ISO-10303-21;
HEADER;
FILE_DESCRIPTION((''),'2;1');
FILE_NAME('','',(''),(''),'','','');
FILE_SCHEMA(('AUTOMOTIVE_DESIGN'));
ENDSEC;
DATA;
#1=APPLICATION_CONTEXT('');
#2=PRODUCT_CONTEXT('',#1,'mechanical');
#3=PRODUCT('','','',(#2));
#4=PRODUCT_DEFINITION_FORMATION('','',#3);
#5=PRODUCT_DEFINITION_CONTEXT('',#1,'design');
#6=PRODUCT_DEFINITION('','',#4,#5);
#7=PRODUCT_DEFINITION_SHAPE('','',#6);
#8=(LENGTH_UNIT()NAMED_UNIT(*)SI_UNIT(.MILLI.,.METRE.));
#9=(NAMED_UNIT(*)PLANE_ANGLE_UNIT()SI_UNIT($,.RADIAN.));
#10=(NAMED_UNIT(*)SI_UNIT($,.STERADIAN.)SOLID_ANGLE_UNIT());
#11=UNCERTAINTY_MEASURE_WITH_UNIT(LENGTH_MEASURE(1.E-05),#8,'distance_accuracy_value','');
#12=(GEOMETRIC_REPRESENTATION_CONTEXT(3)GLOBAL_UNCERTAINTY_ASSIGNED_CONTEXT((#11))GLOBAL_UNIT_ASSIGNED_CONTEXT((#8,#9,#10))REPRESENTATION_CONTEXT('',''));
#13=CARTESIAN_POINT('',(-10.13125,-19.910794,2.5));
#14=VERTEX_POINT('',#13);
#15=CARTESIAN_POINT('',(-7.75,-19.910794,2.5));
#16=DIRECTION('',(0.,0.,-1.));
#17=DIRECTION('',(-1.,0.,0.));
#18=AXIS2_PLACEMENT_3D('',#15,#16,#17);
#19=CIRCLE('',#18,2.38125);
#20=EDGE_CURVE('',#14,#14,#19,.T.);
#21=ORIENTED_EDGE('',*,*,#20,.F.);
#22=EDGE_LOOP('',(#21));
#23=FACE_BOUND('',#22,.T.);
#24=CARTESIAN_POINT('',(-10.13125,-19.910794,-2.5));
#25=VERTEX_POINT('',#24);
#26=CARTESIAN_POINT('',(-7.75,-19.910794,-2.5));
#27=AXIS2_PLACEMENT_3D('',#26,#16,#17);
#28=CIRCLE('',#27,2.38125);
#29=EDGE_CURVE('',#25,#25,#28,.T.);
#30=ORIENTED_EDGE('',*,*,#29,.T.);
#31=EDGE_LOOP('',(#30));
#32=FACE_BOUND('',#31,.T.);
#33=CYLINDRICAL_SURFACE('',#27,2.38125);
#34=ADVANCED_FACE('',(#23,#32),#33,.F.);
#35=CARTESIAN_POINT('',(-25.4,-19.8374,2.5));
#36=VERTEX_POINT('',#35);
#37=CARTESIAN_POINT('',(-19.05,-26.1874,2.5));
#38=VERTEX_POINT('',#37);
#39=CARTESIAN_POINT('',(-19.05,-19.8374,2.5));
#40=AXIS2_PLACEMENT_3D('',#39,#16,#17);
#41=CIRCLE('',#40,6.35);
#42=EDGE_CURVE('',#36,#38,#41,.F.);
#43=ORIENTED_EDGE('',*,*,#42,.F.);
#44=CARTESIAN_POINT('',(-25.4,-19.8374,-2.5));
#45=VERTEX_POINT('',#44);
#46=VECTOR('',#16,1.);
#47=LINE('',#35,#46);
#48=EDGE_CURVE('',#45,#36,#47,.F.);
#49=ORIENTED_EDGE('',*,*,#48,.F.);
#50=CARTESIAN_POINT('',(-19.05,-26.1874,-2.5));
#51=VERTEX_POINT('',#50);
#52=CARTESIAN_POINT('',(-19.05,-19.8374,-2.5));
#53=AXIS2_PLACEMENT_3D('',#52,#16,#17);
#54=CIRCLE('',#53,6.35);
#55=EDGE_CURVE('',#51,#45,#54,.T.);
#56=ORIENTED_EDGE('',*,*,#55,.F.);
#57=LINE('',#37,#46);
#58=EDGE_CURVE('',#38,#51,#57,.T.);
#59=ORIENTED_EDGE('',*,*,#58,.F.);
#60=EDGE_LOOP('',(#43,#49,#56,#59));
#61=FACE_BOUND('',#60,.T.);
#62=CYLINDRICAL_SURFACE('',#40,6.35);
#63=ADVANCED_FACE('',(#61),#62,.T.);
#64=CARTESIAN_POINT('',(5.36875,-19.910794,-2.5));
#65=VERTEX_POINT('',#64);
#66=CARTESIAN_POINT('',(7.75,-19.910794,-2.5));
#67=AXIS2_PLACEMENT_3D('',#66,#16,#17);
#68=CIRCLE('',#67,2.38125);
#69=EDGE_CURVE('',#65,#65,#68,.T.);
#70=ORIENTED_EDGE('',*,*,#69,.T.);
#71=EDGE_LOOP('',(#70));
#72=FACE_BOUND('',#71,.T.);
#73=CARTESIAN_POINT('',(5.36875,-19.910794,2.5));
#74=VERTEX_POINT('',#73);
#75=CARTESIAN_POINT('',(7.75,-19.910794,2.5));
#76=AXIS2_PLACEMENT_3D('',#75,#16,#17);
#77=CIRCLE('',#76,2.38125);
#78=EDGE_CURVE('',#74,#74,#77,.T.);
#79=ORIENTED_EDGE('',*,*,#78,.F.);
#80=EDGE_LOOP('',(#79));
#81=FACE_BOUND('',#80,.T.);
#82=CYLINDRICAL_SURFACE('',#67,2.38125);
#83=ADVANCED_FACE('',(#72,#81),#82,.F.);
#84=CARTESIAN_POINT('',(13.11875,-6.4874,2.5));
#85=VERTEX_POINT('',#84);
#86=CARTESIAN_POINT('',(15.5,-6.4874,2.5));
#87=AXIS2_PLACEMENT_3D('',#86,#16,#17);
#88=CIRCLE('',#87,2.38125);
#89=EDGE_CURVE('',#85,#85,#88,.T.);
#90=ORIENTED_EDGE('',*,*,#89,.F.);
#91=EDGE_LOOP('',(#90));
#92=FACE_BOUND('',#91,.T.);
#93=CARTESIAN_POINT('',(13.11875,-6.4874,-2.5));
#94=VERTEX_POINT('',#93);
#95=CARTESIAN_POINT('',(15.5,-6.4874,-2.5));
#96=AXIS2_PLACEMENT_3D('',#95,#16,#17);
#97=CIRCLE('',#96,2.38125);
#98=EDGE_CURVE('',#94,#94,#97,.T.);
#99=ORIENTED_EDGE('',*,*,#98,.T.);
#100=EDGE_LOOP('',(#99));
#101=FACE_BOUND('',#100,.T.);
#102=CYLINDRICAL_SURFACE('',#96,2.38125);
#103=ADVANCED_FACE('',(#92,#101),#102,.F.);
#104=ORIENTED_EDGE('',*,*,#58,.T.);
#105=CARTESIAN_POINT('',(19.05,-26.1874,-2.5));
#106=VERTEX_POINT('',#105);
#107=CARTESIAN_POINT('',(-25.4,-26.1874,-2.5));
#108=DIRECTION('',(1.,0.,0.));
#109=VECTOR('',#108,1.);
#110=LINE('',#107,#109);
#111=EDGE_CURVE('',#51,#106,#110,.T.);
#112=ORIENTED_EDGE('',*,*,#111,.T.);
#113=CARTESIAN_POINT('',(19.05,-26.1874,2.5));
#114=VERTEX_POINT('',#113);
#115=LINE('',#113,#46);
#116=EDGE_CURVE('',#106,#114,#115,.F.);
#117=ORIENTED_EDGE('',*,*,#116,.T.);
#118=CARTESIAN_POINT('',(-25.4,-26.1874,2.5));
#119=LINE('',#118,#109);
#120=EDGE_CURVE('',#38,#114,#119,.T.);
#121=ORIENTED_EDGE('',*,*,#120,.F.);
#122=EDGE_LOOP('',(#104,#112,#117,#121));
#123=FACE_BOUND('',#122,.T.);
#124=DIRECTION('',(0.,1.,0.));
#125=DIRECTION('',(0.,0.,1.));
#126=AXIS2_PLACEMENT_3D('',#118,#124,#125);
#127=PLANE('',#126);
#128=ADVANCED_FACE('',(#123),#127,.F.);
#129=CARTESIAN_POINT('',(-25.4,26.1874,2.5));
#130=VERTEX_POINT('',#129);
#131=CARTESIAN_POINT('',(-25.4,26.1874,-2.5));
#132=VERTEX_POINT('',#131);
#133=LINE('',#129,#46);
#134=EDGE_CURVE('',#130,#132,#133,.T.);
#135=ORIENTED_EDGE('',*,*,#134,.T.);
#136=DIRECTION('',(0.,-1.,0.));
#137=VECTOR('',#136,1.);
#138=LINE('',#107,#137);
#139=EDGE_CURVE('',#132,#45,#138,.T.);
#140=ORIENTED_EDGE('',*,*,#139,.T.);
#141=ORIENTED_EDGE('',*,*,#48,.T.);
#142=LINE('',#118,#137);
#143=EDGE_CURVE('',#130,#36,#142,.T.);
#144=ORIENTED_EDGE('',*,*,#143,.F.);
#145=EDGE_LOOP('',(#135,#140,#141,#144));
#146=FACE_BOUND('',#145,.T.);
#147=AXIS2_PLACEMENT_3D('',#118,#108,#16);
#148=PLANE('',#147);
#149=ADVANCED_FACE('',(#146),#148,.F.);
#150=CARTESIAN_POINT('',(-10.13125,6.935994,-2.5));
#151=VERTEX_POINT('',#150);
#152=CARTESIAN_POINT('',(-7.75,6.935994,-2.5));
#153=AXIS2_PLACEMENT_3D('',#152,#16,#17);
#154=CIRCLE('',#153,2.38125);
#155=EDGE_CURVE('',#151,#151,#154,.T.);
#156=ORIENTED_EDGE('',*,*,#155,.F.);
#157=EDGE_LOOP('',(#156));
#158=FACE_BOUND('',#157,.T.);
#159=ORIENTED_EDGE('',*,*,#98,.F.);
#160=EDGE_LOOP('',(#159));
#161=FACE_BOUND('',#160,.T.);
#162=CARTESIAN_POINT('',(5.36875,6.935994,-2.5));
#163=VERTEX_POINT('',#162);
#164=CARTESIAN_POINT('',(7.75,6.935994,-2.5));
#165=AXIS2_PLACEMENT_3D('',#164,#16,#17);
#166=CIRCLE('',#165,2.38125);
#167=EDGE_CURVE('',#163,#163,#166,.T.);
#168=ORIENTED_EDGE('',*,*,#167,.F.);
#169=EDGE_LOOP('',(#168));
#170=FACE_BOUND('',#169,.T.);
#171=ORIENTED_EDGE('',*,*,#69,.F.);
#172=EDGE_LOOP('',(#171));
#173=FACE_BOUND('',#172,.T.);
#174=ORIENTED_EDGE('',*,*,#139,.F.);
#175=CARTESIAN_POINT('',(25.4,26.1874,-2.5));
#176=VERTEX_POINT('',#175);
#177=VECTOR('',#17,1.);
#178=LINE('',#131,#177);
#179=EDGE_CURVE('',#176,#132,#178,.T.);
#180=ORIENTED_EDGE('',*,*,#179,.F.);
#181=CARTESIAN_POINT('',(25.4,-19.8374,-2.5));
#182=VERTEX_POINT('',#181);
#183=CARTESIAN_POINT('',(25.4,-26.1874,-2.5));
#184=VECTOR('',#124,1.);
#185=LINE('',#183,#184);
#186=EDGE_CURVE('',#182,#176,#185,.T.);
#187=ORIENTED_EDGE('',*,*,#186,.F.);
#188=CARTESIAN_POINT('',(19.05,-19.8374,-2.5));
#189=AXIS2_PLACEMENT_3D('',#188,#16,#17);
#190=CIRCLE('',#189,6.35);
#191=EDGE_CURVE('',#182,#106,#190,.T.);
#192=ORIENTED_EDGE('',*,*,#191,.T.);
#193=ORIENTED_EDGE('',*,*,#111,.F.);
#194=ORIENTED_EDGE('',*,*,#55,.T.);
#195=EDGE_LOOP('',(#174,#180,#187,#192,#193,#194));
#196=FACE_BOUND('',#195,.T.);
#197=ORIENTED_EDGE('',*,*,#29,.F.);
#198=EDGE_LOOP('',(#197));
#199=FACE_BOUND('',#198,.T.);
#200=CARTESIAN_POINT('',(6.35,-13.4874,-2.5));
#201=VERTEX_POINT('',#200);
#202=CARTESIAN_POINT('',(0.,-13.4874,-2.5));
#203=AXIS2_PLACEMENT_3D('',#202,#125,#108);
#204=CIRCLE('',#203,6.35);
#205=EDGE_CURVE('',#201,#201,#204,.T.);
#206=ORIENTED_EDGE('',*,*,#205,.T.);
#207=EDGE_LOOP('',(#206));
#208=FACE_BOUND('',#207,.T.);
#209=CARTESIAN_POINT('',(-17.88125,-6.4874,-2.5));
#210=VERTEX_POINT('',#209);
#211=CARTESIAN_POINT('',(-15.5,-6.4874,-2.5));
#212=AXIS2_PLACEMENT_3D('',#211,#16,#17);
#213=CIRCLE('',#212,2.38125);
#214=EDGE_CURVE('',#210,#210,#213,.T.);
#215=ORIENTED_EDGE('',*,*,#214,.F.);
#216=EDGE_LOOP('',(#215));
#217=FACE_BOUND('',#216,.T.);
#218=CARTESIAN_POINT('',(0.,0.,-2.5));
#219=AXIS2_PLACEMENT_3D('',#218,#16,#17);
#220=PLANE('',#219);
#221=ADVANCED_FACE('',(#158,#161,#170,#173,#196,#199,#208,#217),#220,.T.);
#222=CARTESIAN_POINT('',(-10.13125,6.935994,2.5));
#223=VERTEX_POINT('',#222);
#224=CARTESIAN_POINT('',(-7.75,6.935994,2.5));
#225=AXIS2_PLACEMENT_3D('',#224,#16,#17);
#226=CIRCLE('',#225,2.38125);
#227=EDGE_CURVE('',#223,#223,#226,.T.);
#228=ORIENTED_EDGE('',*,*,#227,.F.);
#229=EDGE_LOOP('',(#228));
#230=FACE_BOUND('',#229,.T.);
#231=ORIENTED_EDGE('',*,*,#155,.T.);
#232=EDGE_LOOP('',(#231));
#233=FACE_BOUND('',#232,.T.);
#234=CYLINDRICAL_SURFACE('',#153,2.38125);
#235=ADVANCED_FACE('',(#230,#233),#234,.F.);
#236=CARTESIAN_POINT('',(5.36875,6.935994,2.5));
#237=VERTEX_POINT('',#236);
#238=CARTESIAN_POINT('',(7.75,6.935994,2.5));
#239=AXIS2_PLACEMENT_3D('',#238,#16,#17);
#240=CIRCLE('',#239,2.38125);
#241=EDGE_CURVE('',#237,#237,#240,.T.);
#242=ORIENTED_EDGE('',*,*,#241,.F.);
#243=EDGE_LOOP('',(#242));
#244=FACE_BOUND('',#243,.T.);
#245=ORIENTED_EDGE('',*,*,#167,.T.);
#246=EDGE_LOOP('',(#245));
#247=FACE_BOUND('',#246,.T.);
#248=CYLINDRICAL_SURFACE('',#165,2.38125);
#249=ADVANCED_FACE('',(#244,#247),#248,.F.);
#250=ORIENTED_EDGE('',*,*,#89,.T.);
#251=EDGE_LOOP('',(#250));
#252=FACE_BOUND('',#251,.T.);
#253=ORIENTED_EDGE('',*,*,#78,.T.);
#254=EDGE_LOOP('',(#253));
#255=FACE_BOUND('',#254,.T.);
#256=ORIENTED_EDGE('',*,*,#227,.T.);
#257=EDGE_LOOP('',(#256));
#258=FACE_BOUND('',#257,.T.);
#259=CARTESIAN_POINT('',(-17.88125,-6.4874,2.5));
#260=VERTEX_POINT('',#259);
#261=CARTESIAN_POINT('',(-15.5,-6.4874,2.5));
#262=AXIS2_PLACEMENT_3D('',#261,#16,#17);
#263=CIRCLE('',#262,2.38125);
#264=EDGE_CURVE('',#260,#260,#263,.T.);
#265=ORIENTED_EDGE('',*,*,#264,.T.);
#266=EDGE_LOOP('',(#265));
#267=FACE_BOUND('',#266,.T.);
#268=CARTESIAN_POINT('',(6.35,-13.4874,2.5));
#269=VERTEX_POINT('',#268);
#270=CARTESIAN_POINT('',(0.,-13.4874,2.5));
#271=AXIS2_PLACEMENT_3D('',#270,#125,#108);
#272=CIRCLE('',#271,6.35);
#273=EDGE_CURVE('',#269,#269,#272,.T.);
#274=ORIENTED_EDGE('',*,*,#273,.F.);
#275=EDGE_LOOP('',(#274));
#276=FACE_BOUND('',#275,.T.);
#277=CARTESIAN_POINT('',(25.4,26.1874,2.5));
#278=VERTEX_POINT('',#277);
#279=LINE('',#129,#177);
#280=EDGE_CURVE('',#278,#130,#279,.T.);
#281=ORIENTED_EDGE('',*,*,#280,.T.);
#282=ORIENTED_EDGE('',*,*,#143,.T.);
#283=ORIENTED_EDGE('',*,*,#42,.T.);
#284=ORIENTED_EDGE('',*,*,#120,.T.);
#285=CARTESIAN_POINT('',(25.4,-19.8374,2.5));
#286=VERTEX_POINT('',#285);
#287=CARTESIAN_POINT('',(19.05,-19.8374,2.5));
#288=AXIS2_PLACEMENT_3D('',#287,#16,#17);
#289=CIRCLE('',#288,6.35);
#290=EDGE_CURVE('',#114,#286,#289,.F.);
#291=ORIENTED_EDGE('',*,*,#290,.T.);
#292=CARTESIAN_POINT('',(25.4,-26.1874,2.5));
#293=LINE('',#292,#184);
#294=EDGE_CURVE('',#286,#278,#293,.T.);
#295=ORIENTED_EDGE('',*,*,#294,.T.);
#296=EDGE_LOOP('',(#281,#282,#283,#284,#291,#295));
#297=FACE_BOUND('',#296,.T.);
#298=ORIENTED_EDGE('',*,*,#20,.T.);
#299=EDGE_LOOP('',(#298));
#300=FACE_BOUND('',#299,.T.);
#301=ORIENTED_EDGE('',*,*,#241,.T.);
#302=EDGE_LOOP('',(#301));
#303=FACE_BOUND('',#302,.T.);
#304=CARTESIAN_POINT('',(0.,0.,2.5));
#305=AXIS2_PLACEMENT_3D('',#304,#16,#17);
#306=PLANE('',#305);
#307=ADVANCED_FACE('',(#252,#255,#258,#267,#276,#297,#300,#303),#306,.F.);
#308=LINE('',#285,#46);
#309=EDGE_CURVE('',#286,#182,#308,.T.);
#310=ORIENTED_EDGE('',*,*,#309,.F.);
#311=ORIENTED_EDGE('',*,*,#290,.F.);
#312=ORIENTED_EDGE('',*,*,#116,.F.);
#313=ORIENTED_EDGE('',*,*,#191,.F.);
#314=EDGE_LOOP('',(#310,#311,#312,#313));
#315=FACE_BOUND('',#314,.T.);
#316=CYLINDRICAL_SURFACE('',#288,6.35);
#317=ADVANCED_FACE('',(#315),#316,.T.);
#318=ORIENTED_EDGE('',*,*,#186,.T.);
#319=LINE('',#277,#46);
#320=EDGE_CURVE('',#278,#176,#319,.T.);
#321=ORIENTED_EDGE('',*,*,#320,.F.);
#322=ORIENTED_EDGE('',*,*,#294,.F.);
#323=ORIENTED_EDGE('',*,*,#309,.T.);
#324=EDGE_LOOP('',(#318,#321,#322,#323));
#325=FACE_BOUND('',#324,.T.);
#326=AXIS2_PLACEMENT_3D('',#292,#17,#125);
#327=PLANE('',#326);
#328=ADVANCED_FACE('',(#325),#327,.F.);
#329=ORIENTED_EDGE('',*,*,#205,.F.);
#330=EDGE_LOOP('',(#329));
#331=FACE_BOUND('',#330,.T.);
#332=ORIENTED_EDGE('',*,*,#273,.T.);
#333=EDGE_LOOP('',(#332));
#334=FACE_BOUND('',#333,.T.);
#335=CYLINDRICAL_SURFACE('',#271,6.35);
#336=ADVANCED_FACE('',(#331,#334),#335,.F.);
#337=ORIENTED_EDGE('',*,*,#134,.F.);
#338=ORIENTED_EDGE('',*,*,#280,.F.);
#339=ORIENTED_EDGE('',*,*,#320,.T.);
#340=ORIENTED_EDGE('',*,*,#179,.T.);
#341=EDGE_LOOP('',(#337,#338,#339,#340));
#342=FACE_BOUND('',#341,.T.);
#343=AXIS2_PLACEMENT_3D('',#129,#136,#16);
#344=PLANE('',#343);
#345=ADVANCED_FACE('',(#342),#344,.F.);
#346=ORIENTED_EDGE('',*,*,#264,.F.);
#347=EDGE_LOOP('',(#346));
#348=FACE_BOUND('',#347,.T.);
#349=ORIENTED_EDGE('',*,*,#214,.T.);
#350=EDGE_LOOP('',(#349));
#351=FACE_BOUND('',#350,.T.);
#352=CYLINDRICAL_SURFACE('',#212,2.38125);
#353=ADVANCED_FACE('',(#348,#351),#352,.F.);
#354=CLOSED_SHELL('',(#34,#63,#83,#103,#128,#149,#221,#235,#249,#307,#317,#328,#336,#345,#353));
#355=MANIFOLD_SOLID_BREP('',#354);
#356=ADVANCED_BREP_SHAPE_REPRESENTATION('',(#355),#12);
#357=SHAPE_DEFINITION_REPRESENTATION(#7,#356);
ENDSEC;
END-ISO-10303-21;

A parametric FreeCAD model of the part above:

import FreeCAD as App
import Part
import Sketcher
Q = App.Units.Quantity


def edges_at(feature, points):
    """Names of the edges that pass closest to the given points."""
    edges = feature.Shape.Edges
    near = lambda p: min(range(len(edges)), key=lambda i: edges[i].distToShape(Part.Vertex(*p))[0])
    return sorted({f"Edge{near(p) + 1}" for p in points})


def add_polygon(sketch, points):
    """Adds a closed chain of lines whose ends are joined by coincident constraints."""
    first, n = sketch.GeometryCount, len(points)
    for a, b in zip(points, points[1:] + points[:1]):
        sketch.addGeometry(Part.LineSegment(App.Vector(*a, 0), App.Vector(*b, 0)), False)
    for i in range(n):
        sketch.addConstraint(Sketcher.Constraint("Coincident", first + i, 2, first + (i + 1) % n, 1))

doc = App.newDocument("Part")
body = doc.addObject("PartDesign::Body", "Body")

sketch1 = body.newObject("Sketcher::SketchObject", "Sketch")
sketch1.AttachmentSupport = (doc.getObject("XY_Plane"), [""])
sketch1.MapMode = "FlatFace"
add_polygon(sketch1, [(-25, 26), (-25, -26), (25, -26), (25, 26)])
sketch1.addConstraint(Sketcher.Constraint("Vertical", 0))
sketch1.addConstraint(Sketcher.Constraint("Horizontal", 1))
sketch1.addConstraint(Sketcher.Constraint("Vertical", 2))
sketch1.addConstraint(Sketcher.Constraint("Horizontal", 3))
sketch1.addConstraint(Sketcher.Constraint("Symmetric", 0, 2, 2, 2, -1, 1))
sketch1.addConstraint(Sketcher.Constraint("DistanceX", 1, 1, 1, 2, Q("2 in")))
sketch1.addConstraint(Sketcher.Constraint("DistanceY", 0, 2, 0, 1, Q("2.062 in")))
pad1 = body.newObject("PartDesign::Pad", "Pad")
pad1.Profile = sketch1
pad1.Length = 5
pad1.Midplane = True

sketch2 = body.newObject("Sketcher::SketchObject", "Sketch001")
sketch2.AttachmentSupport = (doc.getObject("XY_Plane"), [""])
sketch2.MapMode = "FlatFace"
sketch2.AttachmentOffset = App.Placement(App.Vector(0, 0, 2.5), App.Rotation())
sketch2.addGeometry(Part.Circle(App.Vector(0, -13, 0), App.Vector(0, 0, 1), 6), False)
sketch2.addConstraint(Sketcher.Constraint("PointOnObject", 0, 3, -2))
sketch2.addConstraint(Sketcher.Constraint("Diameter", 0, Q("0.5 in")))
sketch2.addConstraint(Sketcher.Constraint("DistanceY", 0, 3, -1, 1, Q("0.531 in")))
doc.recompute()
hole = body.newObject("PartDesign::Hole", "Hole")
hole.Profile = sketch2
hole.ThreadType = "None"
hole.Diameter = Q("0.5 in")
hole.DepthType = "ThroughAll"

sketch3 = body.newObject("Sketcher::SketchObject", "Sketch002")
sketch3.AttachmentSupport = (doc.getObject("XY_Plane"), [""])
sketch3.MapMode = "FlatFace"
sketch3.AttachmentOffset = App.Placement(App.Vector(0, 0, -2.5), App.Rotation())
sketch3.addGeometry(Part.Circle(App.Vector(-15.5, -6.5, 0), App.Vector(0, 0, 1), 2.4), False)
sketch3.addGeometry(Part.Circle(App.Vector(-7.8, 6.9, 0), App.Vector(0, 0, 1), 2.4), False)
sketch3.addGeometry(Part.Circle(App.Vector(7.8, 6.9, 0), App.Vector(0, 0, 1), 2.4), False)
sketch3.addGeometry(Part.Circle(App.Vector(15.5, -6.5, 0), App.Vector(0, 0, 1), 2.4), False)
sketch3.addGeometry(Part.Circle(App.Vector(-7.8, -19.9, 0), App.Vector(0, 0, 1), 2.4), False)
sketch3.addGeometry(Part.Circle(App.Vector(7.8, -19.9, 0), App.Vector(0, 0, 1), 2.4), False)
sketch3.addConstraint(Sketcher.Constraint("Equal", 0, 1))
sketch3.addConstraint(Sketcher.Constraint("Equal", 1, 2))
sketch3.addConstraint(Sketcher.Constraint("Equal", 2, 3))
sketch3.addConstraint(Sketcher.Constraint("Equal", 3, 4))
sketch3.addConstraint(Sketcher.Constraint("Equal", 4, 5))
sketch3.addConstraint(Sketcher.Constraint("Symmetric", 1, 3, 2, 3, -2))
sketch3.addConstraint(Sketcher.Constraint("Symmetric", 0, 3, 3, 3, -2))
sketch3.addConstraint(Sketcher.Constraint("Symmetric", 4, 3, 5, 3, -2))
sketch3.addConstraint(Sketcher.Constraint("Vertical", 1, 3, 4, 3))
sketch3.addConstraint(Sketcher.Constraint("Diameter", 0, Q("0.1875 in")))
sketch3.addConstraint(Sketcher.Constraint("DistanceX", 0, 3, -1, 1, Q("15.5 mm")))
sketch3.addConstraint(Sketcher.Constraint("DistanceY", 0, 3, -1, 1, Q("6.4874 mm")))
sketch3.addConstraint(Sketcher.Constraint("DistanceX", 1, 3, -1, 1, Q("7.75 mm")))
sketch3.addConstraint(Sketcher.Constraint("DistanceY", -1, 1, 1, 3, Q("6.935994 mm")))
sketch3.addConstraint(Sketcher.Constraint("DistanceY", 4, 3, -1, 1, Q("19.910794 mm")))
doc.recompute()
hole2 = body.newObject("PartDesign::Hole", "Hole001")
hole2.Profile = sketch3
hole2.ThreadType = "None"
hole2.Diameter = Q("0.1875 in")
hole2.DepthType = "ThroughAll"
hole2.Reversed = True
doc.recompute()

fillet = body.newObject("PartDesign::Fillet", "Fillet")
fillet.Base = (hole2, edges_at(hole2, [(25.4, -26.187, 0), (-25.4, -26.187, 0)]))
fillet.Radius = Q("0.25 in")

doc.recompute()
